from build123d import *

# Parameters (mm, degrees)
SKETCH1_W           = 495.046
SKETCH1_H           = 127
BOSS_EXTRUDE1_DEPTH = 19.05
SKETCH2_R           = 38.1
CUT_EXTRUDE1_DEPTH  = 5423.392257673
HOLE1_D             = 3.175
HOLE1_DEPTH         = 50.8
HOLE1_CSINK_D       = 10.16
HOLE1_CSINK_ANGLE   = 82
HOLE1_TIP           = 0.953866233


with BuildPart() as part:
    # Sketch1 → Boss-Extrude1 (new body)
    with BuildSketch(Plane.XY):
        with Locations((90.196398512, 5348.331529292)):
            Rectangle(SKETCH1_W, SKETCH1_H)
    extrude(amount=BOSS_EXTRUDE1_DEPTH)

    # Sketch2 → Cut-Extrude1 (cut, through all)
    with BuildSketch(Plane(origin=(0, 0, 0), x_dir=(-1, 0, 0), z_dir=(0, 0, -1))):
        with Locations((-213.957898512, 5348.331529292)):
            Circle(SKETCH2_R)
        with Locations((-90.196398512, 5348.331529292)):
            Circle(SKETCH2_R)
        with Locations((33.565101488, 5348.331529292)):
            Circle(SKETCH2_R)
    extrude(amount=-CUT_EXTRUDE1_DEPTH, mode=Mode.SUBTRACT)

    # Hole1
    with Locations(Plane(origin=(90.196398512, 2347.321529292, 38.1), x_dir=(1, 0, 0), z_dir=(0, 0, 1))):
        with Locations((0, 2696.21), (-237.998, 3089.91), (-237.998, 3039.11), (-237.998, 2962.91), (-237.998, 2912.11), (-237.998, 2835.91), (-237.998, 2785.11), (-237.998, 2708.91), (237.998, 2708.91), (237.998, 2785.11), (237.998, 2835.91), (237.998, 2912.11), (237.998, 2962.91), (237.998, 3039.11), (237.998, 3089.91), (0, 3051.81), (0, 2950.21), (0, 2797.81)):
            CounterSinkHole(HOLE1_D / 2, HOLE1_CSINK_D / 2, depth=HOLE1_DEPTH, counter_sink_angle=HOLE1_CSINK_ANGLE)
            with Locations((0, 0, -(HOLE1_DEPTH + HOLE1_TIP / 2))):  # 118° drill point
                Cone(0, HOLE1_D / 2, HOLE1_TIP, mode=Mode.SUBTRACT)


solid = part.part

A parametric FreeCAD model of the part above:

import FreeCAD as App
import Part
import Sketcher
Q = App.Units.Quantity

doc = App.newDocument("Part")
body = doc.addObject("PartDesign::Body", "Body")

# Sketch on XY plane
sketch1 = body.newObject("Sketcher::SketchObject", "Sketch")
sketch1.AttachmentSupport = (doc.getObject("XY_Plane"), [""])
sketch1.MapMode = "FlatFace"
sketch1.addGeometry([
    Part.LineSegment(App.Vector(-157, 5412, 0), App.Vector(-157, 5285, 0)),
    Part.LineSegment(App.Vector(-157, 5285, 0), App.Vector(338, 5285, 0)),
    Part.LineSegment(App.Vector(338, 5285, 0), App.Vector(338, 5412, 0)),
    Part.LineSegment(App.Vector(338, 5412, 0), App.Vector(-157, 5412, 0)),
], False)
sketch1.addConstraint([
    Sketcher.Constraint("Coincident", 0, 2, 1, 1),
    Sketcher.Constraint("Coincident", 1, 2, 2, 1),
    Sketcher.Constraint("Coincident", 2, 2, 3, 1),
    Sketcher.Constraint("Coincident", 3, 2, 0, 1),
    Sketcher.Constraint("Vertical", 0),
    Sketcher.Constraint("Horizontal", 1),
    Sketcher.Constraint("Vertical", 2),
    Sketcher.Constraint("Horizontal", 3),
    Sketcher.Constraint("DistanceY", 0, 2, 0, 1, Q("5 in")),
    Sketcher.Constraint("DistanceX", 1, 1, 1, 2, Q("19.49 in")),
    Sketcher.Constraint("DistanceX", 0, 2, -1, 1, Q("157.326601 mm")),
    Sketcher.Constraint("DistanceY", -1, 1, 0, 2, Q("5284.831529 mm")),
])
pad1 = body.newObject("PartDesign::Pad", "Pad")
pad1.Profile = sketch1
pad1.Length = Q("0.75 in")

# Sketch on XY plane
sketch2 = body.newObject("Sketcher::SketchObject", "Sketch001")
sketch2.AttachmentSupport = (doc.getObject("XY_Plane"), [""])
sketch2.MapMode = "FlatFace"
sketch2.addGeometry([
    Part.Circle(App.Vector(214, 5348, 0), App.Vector(0, 0, 1), 38),
    Part.Circle(App.Vector(90, 5348, 0), App.Vector(0, 0, 1), 38),
    Part.Circle(App.Vector(-34, 5348, 0), App.Vector(0, 0, 1), 38),
], False)
sketch2.addConstraint([
    Sketcher.Constraint("Equal", 0, 1),
    Sketcher.Constraint("Equal", 1, 2),
    Sketcher.Constraint("Horizontal", 0, 3, 1, 3),
    Sketcher.Constraint("Horizontal", 1, 3, 2, 3),
    Sketcher.Constraint("Diameter", 0, Q("3 in")),
    Sketcher.Constraint("DistanceX", 2, 3, 0, 3, Q("9.745 in")),
    Sketcher.Constraint("DistanceX", 1, 3, 0, 3, Q("4.8725 in")),
    Sketcher.Constraint("DistanceX", -1, 1, 0, 3, Q("213.957899 mm")),
    Sketcher.Constraint("DistanceY", -1, 1, 0, 3, Q("5348.331529 mm")),
])
pocket1 = body.newObject("PartDesign::Pocket", "Pocket")
pocket1.Profile = sketch2
pocket1.Type = "ThroughAll"
pocket1.Reversed = True

# Sketch on XY plane
sketch3 = body.newObject("Sketcher::SketchObject", "Sketch002")
sketch3.AttachmentSupport = (doc.getObject("XY_Plane"), [""])
sketch3.MapMode = "FlatFace"
sketch3.AttachmentOffset = App.Placement(App.Vector(0, 0, 1.5 * 25.4), App.Rotation())
sketch3.addGeometry([
    Part.Circle(App.Vector(90.2, 5043.5, 0), App.Vector(0, 0, 1), 1.6),  # 0
    Part.Circle(App.Vector(-147.8, 5437.2, 0), App.Vector(0, 0, 1), 1.6),  # 1
    Part.Circle(App.Vector(-147.8, 5386.4, 0), App.Vector(0, 0, 1), 1.6),  # 2
    Part.Circle(App.Vector(-147.8, 5310.2, 0), App.Vector(0, 0, 1), 1.6),  # 3
    Part.Circle(App.Vector(-147.8, 5259.4, 0), App.Vector(0, 0, 1), 1.6),  # 4
    Part.Circle(App.Vector(-147.8, 5183.2, 0), App.Vector(0, 0, 1), 1.6),  # 5
    Part.Circle(App.Vector(-147.8, 5132.4, 0), App.Vector(0, 0, 1), 1.6),  # 6
    Part.Circle(App.Vector(-147.8, 5056.2, 0), App.Vector(0, 0, 1), 1.6),  # 7
    Part.Circle(App.Vector(328.2, 5056.2, 0), App.Vector(0, 0, 1), 1.6),  # 8
    Part.Circle(App.Vector(328.2, 5132.4, 0), App.Vector(0, 0, 1), 1.6),  # 9
    Part.Circle(App.Vector(328.2, 5183.2, 0), App.Vector(0, 0, 1), 1.6),  # 10
    Part.Circle(App.Vector(328.2, 5259.4, 0), App.Vector(0, 0, 1), 1.6),  # 11
    Part.Circle(App.Vector(328.2, 5310.2, 0), App.Vector(0, 0, 1), 1.6),  # 12
    Part.Circle(App.Vector(328.2, 5386.4, 0), App.Vector(0, 0, 1), 1.6),  # 13
    Part.Circle(App.Vector(328.2, 5437.2, 0), App.Vector(0, 0, 1), 1.6),  # 14
    Part.Circle(App.Vector(90.2, 5399.1, 0), App.Vector(0, 0, 1), 1.6),  # 15
    Part.Circle(App.Vector(90.2, 5297.5, 0), App.Vector(0, 0, 1), 1.6),  # 16
    Part.Circle(App.Vector(90.2, 5145.1, 0), App.Vector(0, 0, 1), 1.6),  # 17
], False)
sketch3.addConstraint([
    Sketcher.Constraint("Equal", 0, 1),
    Sketcher.Constraint("Equal", 1, 2),
    Sketcher.Constraint("Equal", 2, 3),
    Sketcher.Constraint("Equal", 3, 4),
    Sketcher.Constraint("Equal", 4, 5),
    Sketcher.Constraint("Equal", 5, 6),
    Sketcher.Constraint("Equal", 6, 7),
    Sketcher.Constraint("Equal", 7, 8),
    Sketcher.Constraint("Equal", 8, 9),
    Sketcher.Constraint("Equal", 9, 10),
    Sketcher.Constraint("Equal", 10, 11),
    Sketcher.Constraint("Equal", 11, 12),
    Sketcher.Constraint("Equal", 12, 13),
    Sketcher.Constraint("Equal", 13, 14),
    Sketcher.Constraint("Equal", 14, 15),
    Sketcher.Constraint("Equal", 15, 16),
    Sketcher.Constraint("Equal", 16, 17),
    Sketcher.Constraint("Horizontal", 7, 3, 8, 3),
    Sketcher.Constraint("Horizontal", 6, 3, 9, 3),
    Sketcher.Constraint("Horizontal", 5, 3, 10, 3),
    Sketcher.Constraint("Horizontal", 4, 3, 11, 3),
    Sketcher.Constraint("Horizontal", 3, 3, 12, 3),
    Sketcher.Constraint("Horizontal", 2, 3, 13, 3),
    Sketcher.Constraint("Horizontal", 1, 3, 14, 3),
    Sketcher.Constraint("Vertical", 1, 3, 2, 3),
    Sketcher.Constraint("Vertical", 2, 3, 3, 3),
    Sketcher.Constraint("Vertical", 3, 3, 4, 3),
    Sketcher.Constraint("Vertical", 4, 3, 5, 3),
    Sketcher.Constraint("Vertical", 5, 3, 6, 3),
    Sketcher.Constraint("Vertical", 6, 3, 7, 3),
    Sketcher.Constraint("Vertical", 8, 3, 9, 3),
    Sketcher.Constraint("Vertical", 9, 3, 10, 3),
    Sketcher.Constraint("Vertical", 10, 3, 11, 3),
    Sketcher.Constraint("Vertical", 11, 3, 12, 3),
    Sketcher.Constraint("Vertical", 12, 3, 13, 3),
    Sketcher.Constraint("Vertical", 13, 3, 14, 3),
    Sketcher.Constraint("Vertical", 0, 3, 15, 3),
    Sketcher.Constraint("Vertical", 15, 3, 16, 3),
    Sketcher.Constraint("Vertical", 16, 3, 17, 3),
    Sketcher.Constraint("Diameter", 0, Q("0.125 in")),
    Sketcher.Constraint("DistanceY", 2, 3, 1, 3, Q("2 in")),
    Sketcher.Constraint("DistanceY", 3, 3, 2, 3, Q("3 in")),
    Sketcher.Constraint("DistanceY", 4, 3, 3, 3, Q("2 in")),
    Sketcher.Constraint("DistanceY", 5, 3, 4, 3, Q("3 in")),
    Sketcher.Constraint("DistanceY", 6, 3, 5, 3, Q("2 in")),
    Sketcher.Constraint("DistanceY", 7, 3, 6, 3, Q("3 in")),
    Sketcher.Constraint("DistanceY", 16, 3, 15, 3, Q("4 in")),
    Sketcher.Constraint("DistanceY", 0, 3, 17, 3, Q("4 in")),
    Sketcher.Constraint("DistanceY", 17, 3, 16, 3, Q("6 in")),
    Sketcher.Constraint("DistanceY", 0, 3, 1, 3, Q("15.5 in")),
    Sketcher.Constraint("DistanceX", 1, 3, 0, 3, Q("9.37 in")),
    Sketcher.Constraint("DistanceX", 0, 3, 8, 3, Q("9.37 in")),
    Sketcher.Constraint("DistanceX", -1, 1, 0, 3, Q("90.196399 mm")),
    Sketcher.Constraint("DistanceY", -1, 1, 0, 3, Q("5043.531529 mm")),
])
doc.recompute()
hole = body.newObject("PartDesign::Hole", "Hole")
hole.Profile = sketch3
hole.ThreadType = "None"
hole.Diameter = Q("0.125 in")
hole.DepthType = "Dimension"
hole.Depth = Q("2 in")
hole.DrillPoint = "Angled"
hole.DrillPointAngle = 118
hole.HoleCutType = "Countersink"
hole.HoleCutDiameter = Q("0.4 in")
hole.HoleCutCountersinkAngle = 82

doc.recompute()
